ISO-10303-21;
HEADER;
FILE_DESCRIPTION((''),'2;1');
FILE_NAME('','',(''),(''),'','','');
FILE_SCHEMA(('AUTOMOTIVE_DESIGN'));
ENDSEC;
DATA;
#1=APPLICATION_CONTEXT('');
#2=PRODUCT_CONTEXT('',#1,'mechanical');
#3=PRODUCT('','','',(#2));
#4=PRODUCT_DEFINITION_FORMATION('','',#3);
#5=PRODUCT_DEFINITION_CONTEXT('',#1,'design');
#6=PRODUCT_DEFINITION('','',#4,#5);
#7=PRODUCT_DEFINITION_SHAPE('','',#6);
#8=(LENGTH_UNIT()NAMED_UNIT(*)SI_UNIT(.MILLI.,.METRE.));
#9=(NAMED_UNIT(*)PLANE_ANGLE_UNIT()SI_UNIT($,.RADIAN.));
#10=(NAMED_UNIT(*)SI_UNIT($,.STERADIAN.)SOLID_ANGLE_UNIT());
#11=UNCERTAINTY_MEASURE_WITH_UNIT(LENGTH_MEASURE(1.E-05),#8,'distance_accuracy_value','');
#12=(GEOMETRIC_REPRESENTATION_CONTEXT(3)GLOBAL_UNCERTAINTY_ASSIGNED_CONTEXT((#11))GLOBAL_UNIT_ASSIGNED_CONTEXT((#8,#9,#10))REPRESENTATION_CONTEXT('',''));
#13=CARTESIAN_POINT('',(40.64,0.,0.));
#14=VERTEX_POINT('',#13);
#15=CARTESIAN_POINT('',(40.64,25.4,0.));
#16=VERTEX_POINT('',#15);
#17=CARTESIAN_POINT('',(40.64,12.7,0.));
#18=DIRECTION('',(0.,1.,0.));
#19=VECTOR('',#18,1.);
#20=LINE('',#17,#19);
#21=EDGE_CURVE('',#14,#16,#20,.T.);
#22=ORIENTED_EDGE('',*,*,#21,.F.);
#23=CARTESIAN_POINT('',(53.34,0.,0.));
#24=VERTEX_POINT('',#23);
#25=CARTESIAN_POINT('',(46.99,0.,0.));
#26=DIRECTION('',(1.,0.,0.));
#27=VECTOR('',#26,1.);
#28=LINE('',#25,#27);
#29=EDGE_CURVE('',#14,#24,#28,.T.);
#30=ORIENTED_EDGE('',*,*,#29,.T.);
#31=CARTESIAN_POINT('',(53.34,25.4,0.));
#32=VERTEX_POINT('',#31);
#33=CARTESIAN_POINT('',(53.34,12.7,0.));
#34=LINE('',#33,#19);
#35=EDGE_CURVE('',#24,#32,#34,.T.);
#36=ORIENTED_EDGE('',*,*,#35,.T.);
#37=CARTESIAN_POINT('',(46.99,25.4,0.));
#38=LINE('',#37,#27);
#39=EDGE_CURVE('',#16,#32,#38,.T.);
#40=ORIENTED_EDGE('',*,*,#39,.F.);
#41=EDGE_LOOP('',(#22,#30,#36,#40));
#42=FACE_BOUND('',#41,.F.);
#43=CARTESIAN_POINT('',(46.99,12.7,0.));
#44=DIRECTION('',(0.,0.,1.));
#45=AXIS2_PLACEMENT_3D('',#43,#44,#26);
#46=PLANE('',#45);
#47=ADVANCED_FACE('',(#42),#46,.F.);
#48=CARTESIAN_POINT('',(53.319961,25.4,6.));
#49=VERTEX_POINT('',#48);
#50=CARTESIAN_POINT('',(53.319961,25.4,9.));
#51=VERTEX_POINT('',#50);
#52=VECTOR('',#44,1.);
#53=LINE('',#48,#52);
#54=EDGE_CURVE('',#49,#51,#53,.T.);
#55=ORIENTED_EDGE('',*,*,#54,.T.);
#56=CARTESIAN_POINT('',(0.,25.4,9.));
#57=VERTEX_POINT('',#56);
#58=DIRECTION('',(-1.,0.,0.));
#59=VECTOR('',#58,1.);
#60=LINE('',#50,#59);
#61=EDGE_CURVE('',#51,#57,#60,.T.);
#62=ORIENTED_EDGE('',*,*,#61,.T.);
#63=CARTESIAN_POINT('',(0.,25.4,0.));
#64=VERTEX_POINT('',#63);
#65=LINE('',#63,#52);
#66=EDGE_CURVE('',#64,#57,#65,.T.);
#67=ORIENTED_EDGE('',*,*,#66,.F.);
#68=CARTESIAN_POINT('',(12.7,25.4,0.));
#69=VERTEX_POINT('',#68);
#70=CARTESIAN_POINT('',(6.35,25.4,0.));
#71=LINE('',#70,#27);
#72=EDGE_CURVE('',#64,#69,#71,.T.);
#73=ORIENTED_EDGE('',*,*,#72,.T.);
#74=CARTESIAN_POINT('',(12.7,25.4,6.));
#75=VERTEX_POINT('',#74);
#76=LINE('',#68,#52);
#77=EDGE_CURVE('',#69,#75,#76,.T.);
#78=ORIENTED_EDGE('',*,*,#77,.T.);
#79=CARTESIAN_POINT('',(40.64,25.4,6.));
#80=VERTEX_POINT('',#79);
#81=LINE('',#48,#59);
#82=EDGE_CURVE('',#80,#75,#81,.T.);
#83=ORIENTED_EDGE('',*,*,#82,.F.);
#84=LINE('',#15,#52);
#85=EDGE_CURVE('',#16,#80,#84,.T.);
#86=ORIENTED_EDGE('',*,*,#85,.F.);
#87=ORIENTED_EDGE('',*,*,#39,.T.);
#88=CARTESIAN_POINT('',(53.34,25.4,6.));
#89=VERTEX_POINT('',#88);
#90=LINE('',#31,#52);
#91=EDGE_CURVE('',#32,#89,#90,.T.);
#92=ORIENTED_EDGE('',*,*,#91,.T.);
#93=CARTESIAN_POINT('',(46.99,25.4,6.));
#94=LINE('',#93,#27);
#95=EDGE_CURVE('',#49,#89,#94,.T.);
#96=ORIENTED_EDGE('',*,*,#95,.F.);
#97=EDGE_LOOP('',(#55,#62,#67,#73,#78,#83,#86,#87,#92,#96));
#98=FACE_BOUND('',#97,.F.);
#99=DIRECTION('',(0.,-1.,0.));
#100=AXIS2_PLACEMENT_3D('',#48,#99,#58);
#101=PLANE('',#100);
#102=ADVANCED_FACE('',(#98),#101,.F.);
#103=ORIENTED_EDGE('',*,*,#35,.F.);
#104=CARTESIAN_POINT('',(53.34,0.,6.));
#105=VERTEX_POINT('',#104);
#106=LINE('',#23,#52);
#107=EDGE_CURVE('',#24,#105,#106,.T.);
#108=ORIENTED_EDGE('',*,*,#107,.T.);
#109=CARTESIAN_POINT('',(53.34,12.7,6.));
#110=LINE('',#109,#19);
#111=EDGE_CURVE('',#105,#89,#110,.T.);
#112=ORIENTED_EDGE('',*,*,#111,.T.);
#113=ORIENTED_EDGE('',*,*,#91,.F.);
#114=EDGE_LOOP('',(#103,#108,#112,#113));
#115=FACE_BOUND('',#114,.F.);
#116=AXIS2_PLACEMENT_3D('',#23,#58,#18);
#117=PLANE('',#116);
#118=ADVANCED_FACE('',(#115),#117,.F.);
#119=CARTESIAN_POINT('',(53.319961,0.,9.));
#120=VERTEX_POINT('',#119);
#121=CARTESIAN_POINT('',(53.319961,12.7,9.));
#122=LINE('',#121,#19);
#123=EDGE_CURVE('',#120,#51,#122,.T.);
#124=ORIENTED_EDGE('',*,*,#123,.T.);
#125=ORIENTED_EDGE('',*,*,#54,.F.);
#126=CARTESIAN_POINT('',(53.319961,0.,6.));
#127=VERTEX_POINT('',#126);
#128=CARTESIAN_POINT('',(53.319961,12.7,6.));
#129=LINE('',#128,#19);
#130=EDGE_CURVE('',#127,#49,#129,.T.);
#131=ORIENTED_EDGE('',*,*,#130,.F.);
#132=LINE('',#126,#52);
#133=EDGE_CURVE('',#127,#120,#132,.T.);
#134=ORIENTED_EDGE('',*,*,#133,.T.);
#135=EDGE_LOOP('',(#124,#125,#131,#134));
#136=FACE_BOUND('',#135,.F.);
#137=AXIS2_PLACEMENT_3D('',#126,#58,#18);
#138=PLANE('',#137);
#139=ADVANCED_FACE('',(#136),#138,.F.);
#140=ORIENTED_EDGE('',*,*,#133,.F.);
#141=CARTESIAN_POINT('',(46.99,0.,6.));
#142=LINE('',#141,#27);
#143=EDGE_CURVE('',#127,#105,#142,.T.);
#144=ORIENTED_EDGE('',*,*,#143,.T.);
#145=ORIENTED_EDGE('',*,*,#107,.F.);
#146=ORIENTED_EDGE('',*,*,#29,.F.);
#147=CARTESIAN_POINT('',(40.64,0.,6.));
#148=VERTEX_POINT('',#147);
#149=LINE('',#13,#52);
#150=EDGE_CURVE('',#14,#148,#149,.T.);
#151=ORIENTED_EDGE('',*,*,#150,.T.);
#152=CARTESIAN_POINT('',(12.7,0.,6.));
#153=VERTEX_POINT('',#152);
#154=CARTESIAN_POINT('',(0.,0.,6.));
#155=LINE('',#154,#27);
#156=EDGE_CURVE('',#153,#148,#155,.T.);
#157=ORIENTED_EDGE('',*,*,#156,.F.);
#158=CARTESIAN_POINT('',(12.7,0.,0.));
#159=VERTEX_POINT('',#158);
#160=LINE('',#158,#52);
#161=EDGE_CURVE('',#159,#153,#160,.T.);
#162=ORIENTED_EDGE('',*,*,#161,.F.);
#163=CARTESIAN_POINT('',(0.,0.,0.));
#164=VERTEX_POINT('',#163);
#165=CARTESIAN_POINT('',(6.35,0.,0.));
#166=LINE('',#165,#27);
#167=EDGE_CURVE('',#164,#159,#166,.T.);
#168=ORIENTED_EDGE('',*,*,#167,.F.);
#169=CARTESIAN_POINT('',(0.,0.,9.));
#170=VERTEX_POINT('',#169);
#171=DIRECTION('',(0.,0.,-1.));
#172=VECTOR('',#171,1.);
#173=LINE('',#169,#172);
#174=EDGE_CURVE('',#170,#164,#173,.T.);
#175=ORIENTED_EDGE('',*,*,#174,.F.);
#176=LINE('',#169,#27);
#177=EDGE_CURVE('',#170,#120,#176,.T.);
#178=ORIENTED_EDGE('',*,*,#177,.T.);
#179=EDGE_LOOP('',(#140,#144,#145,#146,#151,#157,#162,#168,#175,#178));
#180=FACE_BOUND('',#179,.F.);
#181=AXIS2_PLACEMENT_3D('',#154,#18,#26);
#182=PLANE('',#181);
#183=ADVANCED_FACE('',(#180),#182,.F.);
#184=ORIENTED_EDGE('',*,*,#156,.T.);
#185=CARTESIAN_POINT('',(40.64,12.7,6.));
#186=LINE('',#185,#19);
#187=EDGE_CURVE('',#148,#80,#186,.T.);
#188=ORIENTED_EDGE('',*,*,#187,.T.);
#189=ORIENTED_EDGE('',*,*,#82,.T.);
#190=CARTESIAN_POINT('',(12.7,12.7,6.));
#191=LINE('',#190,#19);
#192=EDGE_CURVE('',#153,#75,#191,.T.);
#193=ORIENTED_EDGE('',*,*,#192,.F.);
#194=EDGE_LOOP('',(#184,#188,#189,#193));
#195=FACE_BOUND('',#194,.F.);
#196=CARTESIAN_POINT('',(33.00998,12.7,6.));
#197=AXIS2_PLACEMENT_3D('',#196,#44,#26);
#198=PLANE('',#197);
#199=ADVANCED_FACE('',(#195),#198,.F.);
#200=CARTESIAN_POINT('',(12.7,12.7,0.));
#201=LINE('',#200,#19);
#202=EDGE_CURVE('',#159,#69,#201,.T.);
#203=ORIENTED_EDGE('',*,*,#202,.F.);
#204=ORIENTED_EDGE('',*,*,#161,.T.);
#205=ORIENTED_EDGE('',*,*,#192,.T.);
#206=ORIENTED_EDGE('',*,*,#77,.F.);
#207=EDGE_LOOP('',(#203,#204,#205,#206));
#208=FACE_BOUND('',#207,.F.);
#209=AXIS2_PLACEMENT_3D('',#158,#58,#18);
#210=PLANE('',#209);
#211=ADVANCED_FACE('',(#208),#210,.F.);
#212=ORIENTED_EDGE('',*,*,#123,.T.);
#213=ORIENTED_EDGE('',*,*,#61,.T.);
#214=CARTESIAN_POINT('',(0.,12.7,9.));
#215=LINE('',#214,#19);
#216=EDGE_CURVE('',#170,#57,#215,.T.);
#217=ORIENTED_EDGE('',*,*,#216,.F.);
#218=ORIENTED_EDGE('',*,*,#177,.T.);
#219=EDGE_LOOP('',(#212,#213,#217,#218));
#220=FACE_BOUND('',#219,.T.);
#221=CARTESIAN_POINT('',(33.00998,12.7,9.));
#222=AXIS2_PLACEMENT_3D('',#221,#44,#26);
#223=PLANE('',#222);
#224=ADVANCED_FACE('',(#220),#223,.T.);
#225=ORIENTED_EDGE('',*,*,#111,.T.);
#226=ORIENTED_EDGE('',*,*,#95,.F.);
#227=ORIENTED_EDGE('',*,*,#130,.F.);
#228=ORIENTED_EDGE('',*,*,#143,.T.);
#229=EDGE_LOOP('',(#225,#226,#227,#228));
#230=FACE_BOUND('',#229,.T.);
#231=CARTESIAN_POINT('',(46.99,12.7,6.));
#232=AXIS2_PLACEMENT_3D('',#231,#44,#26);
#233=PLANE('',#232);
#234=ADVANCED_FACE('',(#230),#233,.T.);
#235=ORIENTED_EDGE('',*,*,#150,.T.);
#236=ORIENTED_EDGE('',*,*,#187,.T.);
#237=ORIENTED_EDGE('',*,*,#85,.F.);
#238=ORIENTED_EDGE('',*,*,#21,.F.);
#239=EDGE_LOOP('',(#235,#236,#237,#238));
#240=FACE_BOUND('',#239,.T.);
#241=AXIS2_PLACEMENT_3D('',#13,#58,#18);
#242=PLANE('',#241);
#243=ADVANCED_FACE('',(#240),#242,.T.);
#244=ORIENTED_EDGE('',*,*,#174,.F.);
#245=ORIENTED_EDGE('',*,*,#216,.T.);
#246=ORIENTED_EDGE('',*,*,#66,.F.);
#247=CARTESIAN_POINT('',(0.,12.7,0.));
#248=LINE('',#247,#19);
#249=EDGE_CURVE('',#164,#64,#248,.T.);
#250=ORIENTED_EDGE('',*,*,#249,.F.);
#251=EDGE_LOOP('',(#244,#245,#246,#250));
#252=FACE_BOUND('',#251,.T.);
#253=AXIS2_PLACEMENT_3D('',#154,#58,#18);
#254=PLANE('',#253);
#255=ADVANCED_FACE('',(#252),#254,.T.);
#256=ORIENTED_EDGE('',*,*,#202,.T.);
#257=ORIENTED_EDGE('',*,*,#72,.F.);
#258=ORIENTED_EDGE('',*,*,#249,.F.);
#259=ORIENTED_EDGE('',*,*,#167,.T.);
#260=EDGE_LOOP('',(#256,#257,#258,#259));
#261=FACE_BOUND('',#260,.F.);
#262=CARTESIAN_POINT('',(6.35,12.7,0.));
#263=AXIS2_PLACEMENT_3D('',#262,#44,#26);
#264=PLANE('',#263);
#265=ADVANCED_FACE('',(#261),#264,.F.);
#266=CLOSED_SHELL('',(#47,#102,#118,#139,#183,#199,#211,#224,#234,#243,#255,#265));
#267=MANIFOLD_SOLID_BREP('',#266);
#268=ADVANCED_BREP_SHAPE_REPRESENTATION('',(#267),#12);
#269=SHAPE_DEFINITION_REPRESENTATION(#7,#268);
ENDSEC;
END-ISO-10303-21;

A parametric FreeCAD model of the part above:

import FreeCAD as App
import Part
import Sketcher
from FreeCAD import Vector

doc = App.newDocument("Part")
body = doc.addObject("PartDesign::Body", "Body")

# Sketch on XY plane
sketch1 = body.newObject("Sketcher::SketchObject", "Sketch")
sketch1.AttachmentSupport = (doc.getObject("XY_Plane"), [""])
sketch1.MapMode = "FlatFace"
sketch1.addGeometry([
    Part.LineSegment(Vector(0, 25.4, 0), Vector(0, 0, 0)),
    Part.LineSegment(Vector(0, 0, 0), Vector(12.7, 0, 0)),
    Part.LineSegment(Vector(12.7, 0, 0), Vector(12.7, 25.4, 0)),
    Part.LineSegment(Vector(12.7, 25.4, 0), Vector(0, 25.4, 0)),
], False)
sketch1.addConstraint([
    Sketcher.Constraint("Coincident", 0, 2, 1, 1),
    Sketcher.Constraint("Coincident", 1, 2, 2, 1),
    Sketcher.Constraint("Coincident", 2, 2, 3, 1),
    Sketcher.Constraint("Coincident", 3, 2, 0, 1),
    Sketcher.Constraint("Vertical", 0),
    Sketcher.Constraint("Horizontal", 1),
    Sketcher.Constraint("Vertical", 2),
    Sketcher.Constraint("Horizontal", 3),
    Sketcher.Constraint("Coincident", 0, 2, -1, 1),
    Sketcher.Constraint("DistanceX", 1, 1, 1, 2, 12.7),
    Sketcher.Constraint("DistanceY", 0, 2, 0, 1, 25.4),
])
pad1 = body.newObject("PartDesign::Pad", "Pad")
pad1.Profile = sketch1
pad1.Length = 6
body2 = doc.addObject("PartDesign::Body", "Body001")

# Sketch on XY plane
sketch2 = body2.newObject("Sketcher::SketchObject", "Sketch001")
sketch2.AttachmentSupport = (doc.getObject("XY_Plane001"), [""])
sketch2.MapMode = "FlatFace"
sketch2.addGeometry([
    Part.LineSegment(Vector(40.64, 25.4, 0), Vector(40.64, 0, 0)),
    Part.LineSegment(Vector(40.64, 0, 0), Vector(53.34, 0, 0)),
    Part.LineSegment(Vector(53.34, 0, 0), Vector(53.34, 25.4, 0)),
    Part.LineSegment(Vector(53.34, 25.4, 0), Vector(40.64, 25.4, 0)),
], False)
sketch2.addConstraint([
    Sketcher.Constraint("Coincident", 0, 2, 1, 1),
    Sketcher.Constraint("Coincident", 1, 2, 2, 1),
    Sketcher.Constraint("Coincident", 2, 2, 3, 1),
    Sketcher.Constraint("Coincident", 3, 2, 0, 1),
    Sketcher.Constraint("Vertical", 0),
    Sketcher.Constraint("Horizontal", 1),
    Sketcher.Constraint("Vertical", 2),
    Sketcher.Constraint("Horizontal", 3),
    Sketcher.Constraint("PointOnObject", 0, 2, -1),
    Sketcher.Constraint("DistanceX", 1, 1, 1, 2, 12.7),
    Sketcher.Constraint("DistanceY", 0, 2, 0, 1, 25.4),
    Sketcher.Constraint("DistanceX", -1, 1, 0, 2, 40.64),
])
pad2 = body2.newObject("PartDesign::Pad", "Pad001")
pad2.Profile = sketch2
pad2.Length = 6
body.AllowCompound = True
doc.recompute()

boolean = body.newObject("PartDesign::Boolean", "Boolean")
boolean.Type = "Fuse"
boolean.addObjects([body2])

# Sketch on XY plane
sketch3 = body.newObject("Sketcher::SketchObject", "Sketch002")
sketch3.AttachmentSupport = (doc.getObject("XY_Plane"), [""])
sketch3.MapMode = "FlatFace"
sketch3.AttachmentOffset = App.Placement(Vector(0, 0, 6), App.Rotation())
sketch3.addGeometry([
    Part.LineSegment(Vector(53.319961, 0, 0), Vector(53.319961, 25.4, 0)),
    Part.LineSegment(Vector(53.319961, 25.4, 0), Vector(0, 25.4, 0)),
    Part.LineSegment(Vector(0, 25.4, 0), Vector(0, 0, 0)),
    Part.LineSegment(Vector(0, 0, 0), Vector(53.319961, 0, 0)),
], False)
sketch3.addConstraint([
    Sketcher.Constraint("Coincident", 0, 2, 1, 1),
    Sketcher.Constraint("Coincident", 1, 2, 2, 1),
    Sketcher.Constraint("Coincident", 2, 2, 3, 1),
    Sketcher.Constraint("Coincident", 3, 2, 0, 1),
    Sketcher.Constraint("Vertical", 0),
    Sketcher.Constraint("Horizontal", 1),
    Sketcher.Constraint("Vertical", 2),
    Sketcher.Constraint("Horizontal", 3),
    Sketcher.Constraint("Coincident", 2, 2, -1, 1),
    Sketcher.Constraint("DistanceY", 0, 1, 0, 2, 25.4),
    Sketcher.Constraint("DistanceX", 1, 2, 1, 1, 53.319961),
])
pad3 = body.newObject("PartDesign::Pad", "Pad002")
pad3.Profile = sketch3
pad3.Length = 3

doc.recompute()
